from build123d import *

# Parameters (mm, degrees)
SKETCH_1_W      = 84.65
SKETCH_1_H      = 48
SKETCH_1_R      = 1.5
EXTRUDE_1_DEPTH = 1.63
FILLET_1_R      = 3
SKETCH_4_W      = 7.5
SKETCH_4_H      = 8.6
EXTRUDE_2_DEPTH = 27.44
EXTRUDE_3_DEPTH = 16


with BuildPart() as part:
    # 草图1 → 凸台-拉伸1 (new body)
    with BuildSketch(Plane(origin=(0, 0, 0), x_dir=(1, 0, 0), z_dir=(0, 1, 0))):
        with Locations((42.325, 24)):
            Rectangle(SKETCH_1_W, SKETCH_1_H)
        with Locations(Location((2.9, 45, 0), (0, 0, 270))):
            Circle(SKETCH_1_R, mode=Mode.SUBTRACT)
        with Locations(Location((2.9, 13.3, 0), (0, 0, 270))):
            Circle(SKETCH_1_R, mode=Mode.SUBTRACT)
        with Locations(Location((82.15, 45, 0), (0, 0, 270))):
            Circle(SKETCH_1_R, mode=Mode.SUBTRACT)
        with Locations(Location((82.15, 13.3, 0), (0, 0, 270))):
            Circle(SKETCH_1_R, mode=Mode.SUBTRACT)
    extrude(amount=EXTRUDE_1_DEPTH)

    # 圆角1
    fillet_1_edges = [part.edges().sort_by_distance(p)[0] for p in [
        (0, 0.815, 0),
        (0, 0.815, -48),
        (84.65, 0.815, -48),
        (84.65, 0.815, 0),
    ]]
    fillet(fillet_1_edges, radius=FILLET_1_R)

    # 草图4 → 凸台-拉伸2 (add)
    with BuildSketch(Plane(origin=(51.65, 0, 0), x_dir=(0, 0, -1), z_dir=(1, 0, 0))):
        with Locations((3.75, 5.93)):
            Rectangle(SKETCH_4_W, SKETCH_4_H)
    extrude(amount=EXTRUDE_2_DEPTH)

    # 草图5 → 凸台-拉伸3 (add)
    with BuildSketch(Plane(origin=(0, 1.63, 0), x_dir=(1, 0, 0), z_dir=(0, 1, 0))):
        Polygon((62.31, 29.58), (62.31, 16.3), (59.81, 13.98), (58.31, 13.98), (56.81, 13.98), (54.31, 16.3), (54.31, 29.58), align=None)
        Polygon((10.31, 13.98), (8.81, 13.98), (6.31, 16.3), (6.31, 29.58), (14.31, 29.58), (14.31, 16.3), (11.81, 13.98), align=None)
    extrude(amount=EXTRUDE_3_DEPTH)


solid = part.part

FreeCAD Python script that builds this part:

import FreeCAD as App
import Part
import Sketcher
Q = App.Units.Quantity


def edges_at(feature, points):
    """Names of the edges that pass closest to the given points."""
    edges = feature.Shape.Edges
    near = lambda p: min(range(len(edges)), key=lambda i: edges[i].distToShape(Part.Vertex(*p))[0])
    return sorted({f"Edge{near(p) + 1}" for p in points})


def add_polygon(sketch, points):
    """Adds a closed chain of lines whose ends are joined by coincident constraints."""
    first, n = sketch.GeometryCount, len(points)
    for a, b in zip(points, points[1:] + points[:1]):
        sketch.addGeometry(Part.LineSegment(App.Vector(*a, 0), App.Vector(*b, 0)), False)
    for i in range(n):
        sketch.addConstraint(Sketcher.Constraint("Coincident", first + i, 2, first + (i + 1) % n, 1))

doc = App.newDocument("Part")
body = doc.addObject("PartDesign::Body", "Body")

# Sketch on XZ plane
sketch1 = body.newObject("Sketcher::SketchObject", "Sketch")
sketch1.AttachmentSupport = (doc.getObject("XZ_Plane"), [""])
sketch1.MapMode = "FlatFace"
add_polygon(sketch1, [(0, -48), (0, 0), (84.65, 0), (84.65, -48)])  # lines 0-3
sketch1.addGeometry(Part.Circle(App.Vector(2.9, -13.3, 0), App.Vector(0, 0, 1), 1.5), False)  # 4
sketch1.addGeometry(Part.Circle(App.Vector(82.15, -13.3, 0), App.Vector(0, 0, 1), 1.5), False)  # 5
sketch1.addGeometry(Part.Circle(App.Vector(2.9, -45, 0), App.Vector(0, 0, 1), 1.5), False)  # 6
sketch1.addGeometry(Part.Circle(App.Vector(82.15, -45, 0), App.Vector(0, 0, 1), 1.5), False)  # 7
sketch1.addConstraint([
    Sketcher.Constraint("Vertical", 0),
    Sketcher.Constraint("Horizontal", 1),
    Sketcher.Constraint("Vertical", 2),
    Sketcher.Constraint("Horizontal", 3),
    Sketcher.Constraint("Coincident", 0, 2, -1, 1),
    Sketcher.Constraint("Equal", 4, 5),
    Sketcher.Constraint("Equal", 5, 6),
    Sketcher.Constraint("Equal", 6, 7),
    Sketcher.Constraint("Horizontal", 4, 3, 5, 3),
    Sketcher.Constraint("Horizontal", 6, 3, 7, 3),
    Sketcher.Constraint("Vertical", 4, 3, 6, 3),
    Sketcher.Constraint("Vertical", 5, 3, 7, 3),
    Sketcher.Constraint("Diameter", 4, Q("3 mm")),
    Sketcher.Constraint("DistanceY", 0, 1, 0, 2, Q("48 mm")),
    Sketcher.Constraint("DistanceY", 6, 3, -1, 1, Q("45 mm")),
    Sketcher.Constraint("DistanceX", 1, 1, 1, 2, Q("84.65 mm")),
    Sketcher.Constraint("DistanceX", -1, 1, 4, 3, Q("2.9 mm")),
    Sketcher.Constraint("DistanceY", 4, 3, -1, 1, Q("13.3 mm")),
    Sketcher.Constraint("DistanceX", 5, 3, 1, 2, Q("2.5 mm")),
])
pad1 = body.newObject("PartDesign::Pad", "Pad")
pad1.Profile = sketch1
pad1.Length = 1.63
pad1.Reversed = True
doc.recompute()

fillet = body.newObject("PartDesign::Fillet", "Fillet")
fillet.Base = (pad1, edges_at(pad1, [
    (0, 0.815, 0),
    (0, 0.815, -48),
    (84.65, 0.815, -48),
    (84.65, 0.815, 0),
]))
fillet.Radius = 3

# Sketch on YZ plane
sketch2 = body.newObject("Sketcher::SketchObject", "Sketch001")
sketch2.AttachmentSupport = (doc.getObject("YZ_Plane"), [""])
sketch2.MapMode = "FlatFace"
sketch2.AttachmentOffset = App.Placement(App.Vector(0, 0, 51.65), App.Rotation())
add_polygon(sketch2, [(10.23, 0), (1.63, 0), (1.63, -7.5), (10.23, -7.5)])  # lines 0-3
sketch2.addConstraint([
    Sketcher.Constraint("Horizontal", 0),
    Sketcher.Constraint("Vertical", 1),
    Sketcher.Constraint("Horizontal", 2),
    Sketcher.Constraint("Vertical", 3),
    Sketcher.Constraint("PointOnObject", 0, 2, -1),
    Sketcher.Constraint("DistanceX", 0, 2, 0, 1, Q("8.6 mm")),
    Sketcher.Constraint("DistanceY", 1, 2, 1, 1, Q("7.5 mm")),
    Sketcher.Constraint("DistanceX", -1, 1, 0, 2, Q("1.63 mm")),
])
pad2 = body.newObject("PartDesign::Pad", "Pad001")
pad2.Profile = sketch2
pad2.Length = 27.44

# Sketch on XZ plane
sketch3 = body.newObject("Sketcher::SketchObject", "Sketch002")
sketch3.AttachmentSupport = (doc.getObject("XZ_Plane"), [""])
sketch3.MapMode = "FlatFace"
sketch3.AttachmentOffset = App.Placement(App.Vector(0, 0, -1.63), App.Rotation())
add_polygon(sketch3, [(62.31, -16.3), (62.31, -29.58), (54.31, -29.58), (54.31, -16.3), (56.81, -13.98), (59.81, -13.98)])  # lines 0-5
add_polygon(sketch3, [(8.81, -13.98), (11.81, -13.98), (14.31, -16.3), (14.31, -29.58), (6.31, -29.58), (6.31, -16.3)])  # lines 6-11
sketch3.addConstraint([
    Sketcher.Constraint("Vertical", 0),
    Sketcher.Constraint("Horizontal", 1),
    Sketcher.Constraint("Vertical", 2),
    Sketcher.Constraint("Horizontal", 4),
    Sketcher.Constraint("Horizontal", 6),
    Sketcher.Constraint("Vertical", 8),
    Sketcher.Constraint("Horizontal", 9),
    Sketcher.Constraint("Vertical", 10),
    Sketcher.Constraint("Parallel", 5, 7),
    Sketcher.Constraint("Parallel", 3, 11),
    Sketcher.Constraint("Horizontal", 2, 2, 5, 2),
    Sketcher.Constraint("Horizontal", 4, 2, 6, 2),
    Sketcher.Constraint("Horizontal", 5, 2, 7, 2),
    Sketcher.Constraint("Horizontal", 1, 2, 8, 2),
    Sketcher.Constraint("Horizontal", 7, 2, 10, 2),
    Sketcher.Constraint("Equal", 4, 6),
    Sketcher.Constraint("Equal", 3, 5),
    Sketcher.Constraint("DistanceX", 1, 2, 1, 1, Q("8 mm")),
    Sketcher.Constraint("DistanceX", 4, 1, 4, 2, Q("3 mm")),
    Sketcher.Constraint("DistanceX", 6, 2, 3, 2, Q("45 mm")),
    Sketcher.Constraint("DistanceY", 0, 2, 0, 1, Q("13.28 mm")),
    Sketcher.Constraint("DistanceY", 2, 2, -1, 1, Q("16.3 mm")),
    Sketcher.Constraint("DistanceY", 1, 2, 3, 2, Q("15.6 mm")),
    Sketcher.Constraint("DistanceX", -1, 1, 0, 2, Q("62.31 mm")),
])
pad3 = body.newObject("PartDesign::Pad", "Pad002")
pad3.Profile = sketch3
pad3.Length = 16
pad3.Reversed = True

doc.recompute()
